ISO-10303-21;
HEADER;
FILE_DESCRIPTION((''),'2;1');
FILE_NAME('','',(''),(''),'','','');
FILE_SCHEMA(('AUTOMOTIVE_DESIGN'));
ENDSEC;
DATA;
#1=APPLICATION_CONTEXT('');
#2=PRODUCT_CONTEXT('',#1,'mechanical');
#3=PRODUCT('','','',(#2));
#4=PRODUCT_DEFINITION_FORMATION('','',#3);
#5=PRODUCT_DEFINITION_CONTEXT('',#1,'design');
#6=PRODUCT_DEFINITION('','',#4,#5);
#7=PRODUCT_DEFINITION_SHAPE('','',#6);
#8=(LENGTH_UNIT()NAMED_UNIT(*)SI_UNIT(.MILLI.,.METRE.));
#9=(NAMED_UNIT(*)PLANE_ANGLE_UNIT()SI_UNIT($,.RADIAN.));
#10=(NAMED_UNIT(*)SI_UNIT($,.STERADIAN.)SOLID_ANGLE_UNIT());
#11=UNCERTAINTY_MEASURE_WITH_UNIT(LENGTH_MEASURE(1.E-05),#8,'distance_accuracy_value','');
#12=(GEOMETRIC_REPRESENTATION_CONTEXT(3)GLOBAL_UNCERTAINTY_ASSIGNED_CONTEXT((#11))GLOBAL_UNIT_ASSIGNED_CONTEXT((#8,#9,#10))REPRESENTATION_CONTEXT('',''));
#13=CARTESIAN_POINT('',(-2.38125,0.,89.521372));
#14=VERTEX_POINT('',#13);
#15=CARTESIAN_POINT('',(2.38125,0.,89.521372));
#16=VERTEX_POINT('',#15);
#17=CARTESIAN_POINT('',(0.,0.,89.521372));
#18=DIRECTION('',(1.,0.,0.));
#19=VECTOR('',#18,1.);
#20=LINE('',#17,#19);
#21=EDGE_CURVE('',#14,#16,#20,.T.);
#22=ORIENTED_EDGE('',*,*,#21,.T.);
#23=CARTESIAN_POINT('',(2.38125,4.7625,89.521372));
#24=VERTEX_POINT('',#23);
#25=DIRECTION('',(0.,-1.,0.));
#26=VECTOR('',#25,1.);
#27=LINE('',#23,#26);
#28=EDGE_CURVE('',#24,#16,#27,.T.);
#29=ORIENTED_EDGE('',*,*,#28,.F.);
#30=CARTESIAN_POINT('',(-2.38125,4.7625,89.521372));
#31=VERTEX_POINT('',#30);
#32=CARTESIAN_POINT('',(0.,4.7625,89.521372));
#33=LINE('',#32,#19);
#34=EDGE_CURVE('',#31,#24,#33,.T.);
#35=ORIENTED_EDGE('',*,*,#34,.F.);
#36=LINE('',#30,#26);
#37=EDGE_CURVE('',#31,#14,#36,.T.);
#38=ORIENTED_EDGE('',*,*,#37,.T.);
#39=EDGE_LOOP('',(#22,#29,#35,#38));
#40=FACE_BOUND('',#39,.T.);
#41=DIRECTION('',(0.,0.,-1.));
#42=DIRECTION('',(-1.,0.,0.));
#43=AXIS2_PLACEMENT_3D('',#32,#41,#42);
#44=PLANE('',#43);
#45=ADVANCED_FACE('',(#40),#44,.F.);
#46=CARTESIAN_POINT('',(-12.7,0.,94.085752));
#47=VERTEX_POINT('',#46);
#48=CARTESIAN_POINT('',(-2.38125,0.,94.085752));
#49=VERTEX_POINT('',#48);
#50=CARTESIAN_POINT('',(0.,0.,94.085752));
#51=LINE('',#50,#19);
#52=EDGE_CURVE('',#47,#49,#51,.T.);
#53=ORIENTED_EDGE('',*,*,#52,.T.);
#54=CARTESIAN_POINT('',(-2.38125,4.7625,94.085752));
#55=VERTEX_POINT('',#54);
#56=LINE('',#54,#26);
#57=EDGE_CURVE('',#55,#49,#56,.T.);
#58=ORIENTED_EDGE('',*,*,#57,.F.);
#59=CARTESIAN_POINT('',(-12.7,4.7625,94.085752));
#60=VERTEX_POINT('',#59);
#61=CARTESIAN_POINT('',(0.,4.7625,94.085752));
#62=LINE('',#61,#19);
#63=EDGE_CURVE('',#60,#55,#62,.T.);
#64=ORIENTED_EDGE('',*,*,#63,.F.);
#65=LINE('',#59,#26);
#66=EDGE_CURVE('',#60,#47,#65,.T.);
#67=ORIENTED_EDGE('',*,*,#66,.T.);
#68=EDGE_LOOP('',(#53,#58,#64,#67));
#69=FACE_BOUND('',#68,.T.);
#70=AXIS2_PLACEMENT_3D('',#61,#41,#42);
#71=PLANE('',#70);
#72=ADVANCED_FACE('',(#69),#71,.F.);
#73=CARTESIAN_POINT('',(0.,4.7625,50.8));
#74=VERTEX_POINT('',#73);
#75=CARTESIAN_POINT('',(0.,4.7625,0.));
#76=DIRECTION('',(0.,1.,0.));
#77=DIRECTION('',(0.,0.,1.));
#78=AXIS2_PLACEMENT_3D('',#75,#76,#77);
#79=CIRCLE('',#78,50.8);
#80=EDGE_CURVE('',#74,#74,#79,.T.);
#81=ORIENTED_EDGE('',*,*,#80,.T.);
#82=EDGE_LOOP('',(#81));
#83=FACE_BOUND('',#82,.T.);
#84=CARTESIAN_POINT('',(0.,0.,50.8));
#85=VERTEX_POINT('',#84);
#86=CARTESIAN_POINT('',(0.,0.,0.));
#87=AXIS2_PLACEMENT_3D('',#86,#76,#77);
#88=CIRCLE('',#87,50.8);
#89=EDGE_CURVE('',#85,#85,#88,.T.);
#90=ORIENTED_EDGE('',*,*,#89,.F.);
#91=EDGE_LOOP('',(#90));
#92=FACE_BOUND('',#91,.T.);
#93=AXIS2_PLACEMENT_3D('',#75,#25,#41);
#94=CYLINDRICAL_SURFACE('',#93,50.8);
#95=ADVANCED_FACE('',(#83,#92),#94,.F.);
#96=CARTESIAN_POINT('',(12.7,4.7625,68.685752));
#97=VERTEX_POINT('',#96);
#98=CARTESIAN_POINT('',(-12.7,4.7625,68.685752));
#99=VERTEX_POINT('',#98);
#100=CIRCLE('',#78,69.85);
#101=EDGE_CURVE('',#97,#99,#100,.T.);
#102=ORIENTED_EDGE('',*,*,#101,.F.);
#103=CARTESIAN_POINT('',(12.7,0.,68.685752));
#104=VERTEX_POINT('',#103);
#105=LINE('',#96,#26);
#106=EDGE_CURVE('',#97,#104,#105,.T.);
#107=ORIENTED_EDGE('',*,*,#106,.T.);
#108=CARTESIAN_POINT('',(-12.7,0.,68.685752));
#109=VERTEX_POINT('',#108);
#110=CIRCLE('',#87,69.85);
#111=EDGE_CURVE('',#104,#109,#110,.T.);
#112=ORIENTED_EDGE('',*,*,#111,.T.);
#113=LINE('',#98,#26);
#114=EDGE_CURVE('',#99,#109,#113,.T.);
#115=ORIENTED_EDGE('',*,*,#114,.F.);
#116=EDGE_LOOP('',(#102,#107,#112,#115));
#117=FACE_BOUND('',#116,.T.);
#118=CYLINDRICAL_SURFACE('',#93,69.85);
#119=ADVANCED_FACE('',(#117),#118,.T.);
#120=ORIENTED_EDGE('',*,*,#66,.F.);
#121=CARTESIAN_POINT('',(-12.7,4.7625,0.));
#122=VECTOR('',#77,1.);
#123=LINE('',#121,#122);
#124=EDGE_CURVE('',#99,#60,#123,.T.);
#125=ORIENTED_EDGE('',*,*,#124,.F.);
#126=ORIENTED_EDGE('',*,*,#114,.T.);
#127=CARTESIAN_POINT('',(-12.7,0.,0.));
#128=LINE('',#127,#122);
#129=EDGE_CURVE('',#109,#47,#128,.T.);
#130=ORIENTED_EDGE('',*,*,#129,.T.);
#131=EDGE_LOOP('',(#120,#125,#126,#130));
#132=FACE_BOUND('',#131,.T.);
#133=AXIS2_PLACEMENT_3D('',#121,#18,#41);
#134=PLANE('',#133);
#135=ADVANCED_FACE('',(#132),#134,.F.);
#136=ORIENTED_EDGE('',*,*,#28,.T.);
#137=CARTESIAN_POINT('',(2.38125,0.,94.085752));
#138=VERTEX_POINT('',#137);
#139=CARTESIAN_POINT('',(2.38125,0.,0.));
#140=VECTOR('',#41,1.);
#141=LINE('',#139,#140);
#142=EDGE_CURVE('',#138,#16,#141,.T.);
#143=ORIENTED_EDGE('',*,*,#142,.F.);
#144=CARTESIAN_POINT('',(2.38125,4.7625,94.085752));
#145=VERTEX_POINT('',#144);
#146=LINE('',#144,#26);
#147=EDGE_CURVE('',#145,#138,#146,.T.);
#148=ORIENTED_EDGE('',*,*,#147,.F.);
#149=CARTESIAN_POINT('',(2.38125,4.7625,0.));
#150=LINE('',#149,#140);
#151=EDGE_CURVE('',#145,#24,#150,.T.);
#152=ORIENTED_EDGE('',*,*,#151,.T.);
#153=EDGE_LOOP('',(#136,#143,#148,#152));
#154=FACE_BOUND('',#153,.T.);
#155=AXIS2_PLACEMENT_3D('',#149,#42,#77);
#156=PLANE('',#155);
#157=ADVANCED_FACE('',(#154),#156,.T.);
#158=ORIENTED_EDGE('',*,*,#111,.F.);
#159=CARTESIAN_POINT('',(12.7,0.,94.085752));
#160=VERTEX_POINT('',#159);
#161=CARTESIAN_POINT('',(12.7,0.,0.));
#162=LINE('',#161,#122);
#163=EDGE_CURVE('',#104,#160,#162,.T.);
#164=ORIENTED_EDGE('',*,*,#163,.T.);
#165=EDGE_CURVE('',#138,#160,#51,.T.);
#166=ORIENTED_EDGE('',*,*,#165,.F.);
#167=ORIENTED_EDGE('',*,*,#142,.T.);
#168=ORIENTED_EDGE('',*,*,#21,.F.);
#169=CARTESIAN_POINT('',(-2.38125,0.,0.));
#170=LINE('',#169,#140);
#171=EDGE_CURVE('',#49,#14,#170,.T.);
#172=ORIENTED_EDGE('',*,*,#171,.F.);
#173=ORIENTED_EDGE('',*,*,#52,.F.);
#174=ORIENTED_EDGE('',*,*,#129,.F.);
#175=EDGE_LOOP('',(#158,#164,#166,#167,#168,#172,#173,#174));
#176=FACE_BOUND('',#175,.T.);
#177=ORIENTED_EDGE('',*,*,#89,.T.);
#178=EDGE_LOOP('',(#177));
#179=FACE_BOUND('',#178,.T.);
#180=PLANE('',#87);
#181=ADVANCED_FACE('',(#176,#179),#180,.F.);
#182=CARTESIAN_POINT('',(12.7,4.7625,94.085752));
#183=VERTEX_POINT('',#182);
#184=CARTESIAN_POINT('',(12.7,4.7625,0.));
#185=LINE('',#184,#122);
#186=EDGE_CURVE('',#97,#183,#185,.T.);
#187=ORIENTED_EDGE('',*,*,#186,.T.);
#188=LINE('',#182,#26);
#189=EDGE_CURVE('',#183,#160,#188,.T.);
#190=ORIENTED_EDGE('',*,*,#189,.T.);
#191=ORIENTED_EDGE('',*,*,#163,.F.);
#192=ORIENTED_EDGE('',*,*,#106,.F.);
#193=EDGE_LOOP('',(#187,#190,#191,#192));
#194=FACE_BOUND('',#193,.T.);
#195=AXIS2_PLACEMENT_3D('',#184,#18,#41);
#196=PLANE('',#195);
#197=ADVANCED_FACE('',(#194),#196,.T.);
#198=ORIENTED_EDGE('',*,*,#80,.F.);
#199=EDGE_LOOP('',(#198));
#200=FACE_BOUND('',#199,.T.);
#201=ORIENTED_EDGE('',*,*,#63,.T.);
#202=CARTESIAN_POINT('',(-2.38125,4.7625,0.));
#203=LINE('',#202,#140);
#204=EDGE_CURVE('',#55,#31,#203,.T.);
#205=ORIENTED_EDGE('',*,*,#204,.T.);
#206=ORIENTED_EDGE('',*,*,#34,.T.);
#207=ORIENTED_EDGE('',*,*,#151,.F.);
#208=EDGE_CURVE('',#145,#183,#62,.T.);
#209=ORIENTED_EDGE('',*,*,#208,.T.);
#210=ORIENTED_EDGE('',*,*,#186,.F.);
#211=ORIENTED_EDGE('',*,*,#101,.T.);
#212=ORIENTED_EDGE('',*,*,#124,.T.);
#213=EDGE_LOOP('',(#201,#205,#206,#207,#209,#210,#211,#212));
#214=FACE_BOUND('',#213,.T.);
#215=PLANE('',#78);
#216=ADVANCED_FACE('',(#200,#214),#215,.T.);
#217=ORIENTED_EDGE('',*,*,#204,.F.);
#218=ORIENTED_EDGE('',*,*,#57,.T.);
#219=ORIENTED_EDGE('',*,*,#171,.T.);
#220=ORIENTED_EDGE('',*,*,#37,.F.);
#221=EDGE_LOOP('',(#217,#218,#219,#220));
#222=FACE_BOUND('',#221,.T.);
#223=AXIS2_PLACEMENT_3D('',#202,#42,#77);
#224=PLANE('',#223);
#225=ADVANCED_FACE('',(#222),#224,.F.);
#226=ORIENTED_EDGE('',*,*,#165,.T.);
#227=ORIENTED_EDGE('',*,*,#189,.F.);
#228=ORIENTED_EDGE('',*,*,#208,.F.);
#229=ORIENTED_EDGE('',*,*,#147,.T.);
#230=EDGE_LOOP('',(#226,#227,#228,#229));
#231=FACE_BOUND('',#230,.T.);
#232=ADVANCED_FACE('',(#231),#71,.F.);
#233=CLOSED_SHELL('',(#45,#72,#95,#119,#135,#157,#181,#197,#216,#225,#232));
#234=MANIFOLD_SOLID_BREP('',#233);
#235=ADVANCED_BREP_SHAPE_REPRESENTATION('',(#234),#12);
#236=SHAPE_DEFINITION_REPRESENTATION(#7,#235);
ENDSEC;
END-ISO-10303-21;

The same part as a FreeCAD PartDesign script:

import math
import FreeCAD as App
import Part
import Sketcher
Q = App.Units.Quantity

doc = App.newDocument("Part")
body = doc.addObject("PartDesign::Body", "Body")

sketch1 = body.newObject("Sketcher::SketchObject", "Sketch")
sketch1.AttachmentSupport = (doc.getObject("XZ_Plane"), [""])
sketch1.MapMode = "FlatFace"
sketch1.addGeometry([
    Part.LineSegment(App.Vector(12.7, 94.085752, 0), App.Vector(12.7, 68.685752, 0)),
    Part.ArcOfCircle(Part.Circle(App.Vector(0, 0, 0), App.Vector(0, 0, 1), 69.85), math.radians(100.475682), math.radians(439.524318)),
    Part.LineSegment(App.Vector(-12.7, 68.685752, 0), App.Vector(-12.7, 94.085752, 0)),
    Part.LineSegment(App.Vector(-12.7, 94.085752, 0), App.Vector(-2.38125, 94.085752, 0)),
    Part.LineSegment(App.Vector(-2.38125, 94.085752, 0), App.Vector(-2.38125, 89.521372, 0)),
    Part.LineSegment(App.Vector(-2.38125, 89.521372, 0), App.Vector(2.38125, 89.521372, 0)),
    Part.LineSegment(App.Vector(2.38125, 89.521372, 0), App.Vector(2.38125, 94.085752, 0)),
    Part.LineSegment(App.Vector(2.38125, 94.085752, 0), App.Vector(12.7, 94.085752, 0)),
    Part.Circle(App.Vector(0, 0, 0), App.Vector(0, 0, 1), 50.8),
], False)
sketch1.addConstraint([
    Sketcher.Constraint("Coincident", 0, 2, 1, 2),
    Sketcher.Constraint("Coincident", 1, 1, 2, 1),
    Sketcher.Constraint("Coincident", 2, 2, 3, 1),
    Sketcher.Constraint("Coincident", 3, 2, 4, 1),
    Sketcher.Constraint("Coincident", 4, 2, 5, 1),
    Sketcher.Constraint("Coincident", 5, 2, 6, 1),
    Sketcher.Constraint("Coincident", 6, 2, 7, 1),
    Sketcher.Constraint("Coincident", 7, 2, 0, 1),
    Sketcher.Constraint("Vertical", 0),
    Sketcher.Constraint("Vertical", 2),
    Sketcher.Constraint("Horizontal", 3),
    Sketcher.Constraint("Vertical", 4),
    Sketcher.Constraint("Horizontal", 5),
    Sketcher.Constraint("Vertical", 6),
    Sketcher.Constraint("Horizontal", 7),
    Sketcher.Constraint("Coincident", 1, 3, -1, 1),
    Sketcher.Constraint("Coincident", 8, 3, -1, 1),
    Sketcher.Constraint("Symmetric", 3, 2, 6, 2, -2),
    Sketcher.Constraint("Horizontal", 0, 2, 1, 1),
    Sketcher.Constraint("Diameter", 8, Q("4 in")),
    Sketcher.Constraint("DistanceY", 0, 2, 0, 1, Q("1 in")),
    Sketcher.Constraint("Radius", 1, Q("2.75 in")),
    Sketcher.Constraint("DistanceX", 1, 1, 0, 2, Q("1 in")),
    Sketcher.Constraint("DistanceX", 3, 1, 3, 2, Q("0.40625 in")),
    Sketcher.Constraint("DistanceY", 4, 2, 4, 1, Q("0.1797 in")),
])
pad1 = body.newObject("PartDesign::Pad", "Pad")
pad1.Profile = sketch1
pad1.Length = Q("0.1875 in")
pad1.Reversed = True

doc.recompute()
